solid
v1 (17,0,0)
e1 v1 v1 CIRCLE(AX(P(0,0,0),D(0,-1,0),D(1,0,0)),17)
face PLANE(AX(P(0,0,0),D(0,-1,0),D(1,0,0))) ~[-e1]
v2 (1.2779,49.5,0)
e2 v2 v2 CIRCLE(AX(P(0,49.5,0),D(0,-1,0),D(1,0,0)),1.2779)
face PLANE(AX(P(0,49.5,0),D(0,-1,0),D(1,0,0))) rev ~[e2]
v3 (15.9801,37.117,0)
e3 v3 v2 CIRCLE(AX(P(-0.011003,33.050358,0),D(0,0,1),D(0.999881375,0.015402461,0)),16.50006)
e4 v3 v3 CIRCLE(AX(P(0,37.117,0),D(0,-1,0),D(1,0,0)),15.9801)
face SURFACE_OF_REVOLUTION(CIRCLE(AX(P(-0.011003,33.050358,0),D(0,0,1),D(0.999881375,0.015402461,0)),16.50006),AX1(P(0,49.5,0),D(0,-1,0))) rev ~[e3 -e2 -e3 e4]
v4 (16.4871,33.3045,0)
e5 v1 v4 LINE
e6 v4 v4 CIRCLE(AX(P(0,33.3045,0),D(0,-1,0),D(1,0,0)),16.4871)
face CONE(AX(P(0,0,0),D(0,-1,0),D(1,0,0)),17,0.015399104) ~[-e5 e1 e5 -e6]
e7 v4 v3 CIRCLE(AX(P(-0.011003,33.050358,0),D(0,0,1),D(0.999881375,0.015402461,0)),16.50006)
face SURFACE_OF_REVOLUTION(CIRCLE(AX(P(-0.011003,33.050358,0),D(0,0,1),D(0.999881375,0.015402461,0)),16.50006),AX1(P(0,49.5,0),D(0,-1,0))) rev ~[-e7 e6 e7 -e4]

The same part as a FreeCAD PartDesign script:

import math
import FreeCAD as App
import Part
import Sketcher

V = App.Vector

doc = App.newDocument("Part")
params = doc.addObject("Spreadsheet::Sheet", "Params")
for row, (alias, value) in enumerate([
    ("sketch1_radius", "16.5 mm"),
    ("sketch1_width", "17 mm"),
    ("sketch1_height", "49.5 mm"),
    ("revolution_angle", "360 deg"),
], start=1):
    params.set(f"A{row}", alias)
    params.set(f"B{row}", "=" + value)
    params.setAlias(f"B{row}", alias)

body = doc.addObject("PartDesign::Body", "Body")

# Sketch on XY plane
sketch1 = doc.addObject("Sketcher::SketchObject", "Sketch")
body.addObject(sketch1)
sketch1.AttachmentSupport = (doc.XY_Plane, [""])
sketch1.MapMode = "FlatFace"
sketch1.addGeometry([
    Part.LineSegment(V(0, 49.5, 0), V(0, 0, 0)),  # 0
    Part.LineSegment(V(0, 0, 0), V(17, 0, 0)),  # 1
    Part.LineSegment(V(17, 0, 0), V(16.4871, 33.3045, 0)),  # 2
    Part.ArcOfCircle(Part.Circle(V(-0.0109, 33.0504, 0), V(0, 0, 1), 16.499957), math.radians(0.882392), math.radians(85.520118)),  # 3
    Part.LineSegment(V(1.2779, 49.5, 0), V(0, 49.5, 0)),  # 4
], False)
sketch1.addConstraint([
    Sketcher.Constraint("Coincident", 0, 2, 1, 1),
    Sketcher.Constraint("Coincident", 1, 2, 2, 1),
    Sketcher.Constraint("Tangent", 2, 2, 3, 1),
    Sketcher.Constraint("Coincident", 3, 2, 4, 1),
    Sketcher.Constraint("Coincident", 4, 2, 0, 1),
    Sketcher.Constraint("Vertical", 0),
    Sketcher.Constraint("Horizontal", 1),
    Sketcher.Constraint("Horizontal", 4),
    Sketcher.Constraint("Coincident", 0, 2, -1, 1),
    Sketcher.Constraint("Radius", 3, 16.5),
    Sketcher.Constraint("DistanceX", 1, 1, 1, 2, 17.0),
    Sketcher.Constraint("DistanceY", 0, 2, 0, 1, 49.5),
    Sketcher.Constraint("DistanceX", 4, 2, 4, 1, 1.278),
    Sketcher.Constraint("DistanceX", 3, 3, -1, 1, 0.011),
])
sketch1.setExpression("Constraints[9]", "Params.sketch1_radius")
sketch1.setExpression("Constraints[10]", "Params.sketch1_width")
sketch1.setExpression("Constraints[11]", "Params.sketch1_height")
revolution = doc.addObject("PartDesign::Revolution", "Revolution")
body.addObject(revolution)
revolution.Profile = sketch1
revolution.ReferenceAxis = (sketch1, ["V_Axis"])
revolution.setExpression("Angle", "Params.revolution_angle")

doc.recompute()
